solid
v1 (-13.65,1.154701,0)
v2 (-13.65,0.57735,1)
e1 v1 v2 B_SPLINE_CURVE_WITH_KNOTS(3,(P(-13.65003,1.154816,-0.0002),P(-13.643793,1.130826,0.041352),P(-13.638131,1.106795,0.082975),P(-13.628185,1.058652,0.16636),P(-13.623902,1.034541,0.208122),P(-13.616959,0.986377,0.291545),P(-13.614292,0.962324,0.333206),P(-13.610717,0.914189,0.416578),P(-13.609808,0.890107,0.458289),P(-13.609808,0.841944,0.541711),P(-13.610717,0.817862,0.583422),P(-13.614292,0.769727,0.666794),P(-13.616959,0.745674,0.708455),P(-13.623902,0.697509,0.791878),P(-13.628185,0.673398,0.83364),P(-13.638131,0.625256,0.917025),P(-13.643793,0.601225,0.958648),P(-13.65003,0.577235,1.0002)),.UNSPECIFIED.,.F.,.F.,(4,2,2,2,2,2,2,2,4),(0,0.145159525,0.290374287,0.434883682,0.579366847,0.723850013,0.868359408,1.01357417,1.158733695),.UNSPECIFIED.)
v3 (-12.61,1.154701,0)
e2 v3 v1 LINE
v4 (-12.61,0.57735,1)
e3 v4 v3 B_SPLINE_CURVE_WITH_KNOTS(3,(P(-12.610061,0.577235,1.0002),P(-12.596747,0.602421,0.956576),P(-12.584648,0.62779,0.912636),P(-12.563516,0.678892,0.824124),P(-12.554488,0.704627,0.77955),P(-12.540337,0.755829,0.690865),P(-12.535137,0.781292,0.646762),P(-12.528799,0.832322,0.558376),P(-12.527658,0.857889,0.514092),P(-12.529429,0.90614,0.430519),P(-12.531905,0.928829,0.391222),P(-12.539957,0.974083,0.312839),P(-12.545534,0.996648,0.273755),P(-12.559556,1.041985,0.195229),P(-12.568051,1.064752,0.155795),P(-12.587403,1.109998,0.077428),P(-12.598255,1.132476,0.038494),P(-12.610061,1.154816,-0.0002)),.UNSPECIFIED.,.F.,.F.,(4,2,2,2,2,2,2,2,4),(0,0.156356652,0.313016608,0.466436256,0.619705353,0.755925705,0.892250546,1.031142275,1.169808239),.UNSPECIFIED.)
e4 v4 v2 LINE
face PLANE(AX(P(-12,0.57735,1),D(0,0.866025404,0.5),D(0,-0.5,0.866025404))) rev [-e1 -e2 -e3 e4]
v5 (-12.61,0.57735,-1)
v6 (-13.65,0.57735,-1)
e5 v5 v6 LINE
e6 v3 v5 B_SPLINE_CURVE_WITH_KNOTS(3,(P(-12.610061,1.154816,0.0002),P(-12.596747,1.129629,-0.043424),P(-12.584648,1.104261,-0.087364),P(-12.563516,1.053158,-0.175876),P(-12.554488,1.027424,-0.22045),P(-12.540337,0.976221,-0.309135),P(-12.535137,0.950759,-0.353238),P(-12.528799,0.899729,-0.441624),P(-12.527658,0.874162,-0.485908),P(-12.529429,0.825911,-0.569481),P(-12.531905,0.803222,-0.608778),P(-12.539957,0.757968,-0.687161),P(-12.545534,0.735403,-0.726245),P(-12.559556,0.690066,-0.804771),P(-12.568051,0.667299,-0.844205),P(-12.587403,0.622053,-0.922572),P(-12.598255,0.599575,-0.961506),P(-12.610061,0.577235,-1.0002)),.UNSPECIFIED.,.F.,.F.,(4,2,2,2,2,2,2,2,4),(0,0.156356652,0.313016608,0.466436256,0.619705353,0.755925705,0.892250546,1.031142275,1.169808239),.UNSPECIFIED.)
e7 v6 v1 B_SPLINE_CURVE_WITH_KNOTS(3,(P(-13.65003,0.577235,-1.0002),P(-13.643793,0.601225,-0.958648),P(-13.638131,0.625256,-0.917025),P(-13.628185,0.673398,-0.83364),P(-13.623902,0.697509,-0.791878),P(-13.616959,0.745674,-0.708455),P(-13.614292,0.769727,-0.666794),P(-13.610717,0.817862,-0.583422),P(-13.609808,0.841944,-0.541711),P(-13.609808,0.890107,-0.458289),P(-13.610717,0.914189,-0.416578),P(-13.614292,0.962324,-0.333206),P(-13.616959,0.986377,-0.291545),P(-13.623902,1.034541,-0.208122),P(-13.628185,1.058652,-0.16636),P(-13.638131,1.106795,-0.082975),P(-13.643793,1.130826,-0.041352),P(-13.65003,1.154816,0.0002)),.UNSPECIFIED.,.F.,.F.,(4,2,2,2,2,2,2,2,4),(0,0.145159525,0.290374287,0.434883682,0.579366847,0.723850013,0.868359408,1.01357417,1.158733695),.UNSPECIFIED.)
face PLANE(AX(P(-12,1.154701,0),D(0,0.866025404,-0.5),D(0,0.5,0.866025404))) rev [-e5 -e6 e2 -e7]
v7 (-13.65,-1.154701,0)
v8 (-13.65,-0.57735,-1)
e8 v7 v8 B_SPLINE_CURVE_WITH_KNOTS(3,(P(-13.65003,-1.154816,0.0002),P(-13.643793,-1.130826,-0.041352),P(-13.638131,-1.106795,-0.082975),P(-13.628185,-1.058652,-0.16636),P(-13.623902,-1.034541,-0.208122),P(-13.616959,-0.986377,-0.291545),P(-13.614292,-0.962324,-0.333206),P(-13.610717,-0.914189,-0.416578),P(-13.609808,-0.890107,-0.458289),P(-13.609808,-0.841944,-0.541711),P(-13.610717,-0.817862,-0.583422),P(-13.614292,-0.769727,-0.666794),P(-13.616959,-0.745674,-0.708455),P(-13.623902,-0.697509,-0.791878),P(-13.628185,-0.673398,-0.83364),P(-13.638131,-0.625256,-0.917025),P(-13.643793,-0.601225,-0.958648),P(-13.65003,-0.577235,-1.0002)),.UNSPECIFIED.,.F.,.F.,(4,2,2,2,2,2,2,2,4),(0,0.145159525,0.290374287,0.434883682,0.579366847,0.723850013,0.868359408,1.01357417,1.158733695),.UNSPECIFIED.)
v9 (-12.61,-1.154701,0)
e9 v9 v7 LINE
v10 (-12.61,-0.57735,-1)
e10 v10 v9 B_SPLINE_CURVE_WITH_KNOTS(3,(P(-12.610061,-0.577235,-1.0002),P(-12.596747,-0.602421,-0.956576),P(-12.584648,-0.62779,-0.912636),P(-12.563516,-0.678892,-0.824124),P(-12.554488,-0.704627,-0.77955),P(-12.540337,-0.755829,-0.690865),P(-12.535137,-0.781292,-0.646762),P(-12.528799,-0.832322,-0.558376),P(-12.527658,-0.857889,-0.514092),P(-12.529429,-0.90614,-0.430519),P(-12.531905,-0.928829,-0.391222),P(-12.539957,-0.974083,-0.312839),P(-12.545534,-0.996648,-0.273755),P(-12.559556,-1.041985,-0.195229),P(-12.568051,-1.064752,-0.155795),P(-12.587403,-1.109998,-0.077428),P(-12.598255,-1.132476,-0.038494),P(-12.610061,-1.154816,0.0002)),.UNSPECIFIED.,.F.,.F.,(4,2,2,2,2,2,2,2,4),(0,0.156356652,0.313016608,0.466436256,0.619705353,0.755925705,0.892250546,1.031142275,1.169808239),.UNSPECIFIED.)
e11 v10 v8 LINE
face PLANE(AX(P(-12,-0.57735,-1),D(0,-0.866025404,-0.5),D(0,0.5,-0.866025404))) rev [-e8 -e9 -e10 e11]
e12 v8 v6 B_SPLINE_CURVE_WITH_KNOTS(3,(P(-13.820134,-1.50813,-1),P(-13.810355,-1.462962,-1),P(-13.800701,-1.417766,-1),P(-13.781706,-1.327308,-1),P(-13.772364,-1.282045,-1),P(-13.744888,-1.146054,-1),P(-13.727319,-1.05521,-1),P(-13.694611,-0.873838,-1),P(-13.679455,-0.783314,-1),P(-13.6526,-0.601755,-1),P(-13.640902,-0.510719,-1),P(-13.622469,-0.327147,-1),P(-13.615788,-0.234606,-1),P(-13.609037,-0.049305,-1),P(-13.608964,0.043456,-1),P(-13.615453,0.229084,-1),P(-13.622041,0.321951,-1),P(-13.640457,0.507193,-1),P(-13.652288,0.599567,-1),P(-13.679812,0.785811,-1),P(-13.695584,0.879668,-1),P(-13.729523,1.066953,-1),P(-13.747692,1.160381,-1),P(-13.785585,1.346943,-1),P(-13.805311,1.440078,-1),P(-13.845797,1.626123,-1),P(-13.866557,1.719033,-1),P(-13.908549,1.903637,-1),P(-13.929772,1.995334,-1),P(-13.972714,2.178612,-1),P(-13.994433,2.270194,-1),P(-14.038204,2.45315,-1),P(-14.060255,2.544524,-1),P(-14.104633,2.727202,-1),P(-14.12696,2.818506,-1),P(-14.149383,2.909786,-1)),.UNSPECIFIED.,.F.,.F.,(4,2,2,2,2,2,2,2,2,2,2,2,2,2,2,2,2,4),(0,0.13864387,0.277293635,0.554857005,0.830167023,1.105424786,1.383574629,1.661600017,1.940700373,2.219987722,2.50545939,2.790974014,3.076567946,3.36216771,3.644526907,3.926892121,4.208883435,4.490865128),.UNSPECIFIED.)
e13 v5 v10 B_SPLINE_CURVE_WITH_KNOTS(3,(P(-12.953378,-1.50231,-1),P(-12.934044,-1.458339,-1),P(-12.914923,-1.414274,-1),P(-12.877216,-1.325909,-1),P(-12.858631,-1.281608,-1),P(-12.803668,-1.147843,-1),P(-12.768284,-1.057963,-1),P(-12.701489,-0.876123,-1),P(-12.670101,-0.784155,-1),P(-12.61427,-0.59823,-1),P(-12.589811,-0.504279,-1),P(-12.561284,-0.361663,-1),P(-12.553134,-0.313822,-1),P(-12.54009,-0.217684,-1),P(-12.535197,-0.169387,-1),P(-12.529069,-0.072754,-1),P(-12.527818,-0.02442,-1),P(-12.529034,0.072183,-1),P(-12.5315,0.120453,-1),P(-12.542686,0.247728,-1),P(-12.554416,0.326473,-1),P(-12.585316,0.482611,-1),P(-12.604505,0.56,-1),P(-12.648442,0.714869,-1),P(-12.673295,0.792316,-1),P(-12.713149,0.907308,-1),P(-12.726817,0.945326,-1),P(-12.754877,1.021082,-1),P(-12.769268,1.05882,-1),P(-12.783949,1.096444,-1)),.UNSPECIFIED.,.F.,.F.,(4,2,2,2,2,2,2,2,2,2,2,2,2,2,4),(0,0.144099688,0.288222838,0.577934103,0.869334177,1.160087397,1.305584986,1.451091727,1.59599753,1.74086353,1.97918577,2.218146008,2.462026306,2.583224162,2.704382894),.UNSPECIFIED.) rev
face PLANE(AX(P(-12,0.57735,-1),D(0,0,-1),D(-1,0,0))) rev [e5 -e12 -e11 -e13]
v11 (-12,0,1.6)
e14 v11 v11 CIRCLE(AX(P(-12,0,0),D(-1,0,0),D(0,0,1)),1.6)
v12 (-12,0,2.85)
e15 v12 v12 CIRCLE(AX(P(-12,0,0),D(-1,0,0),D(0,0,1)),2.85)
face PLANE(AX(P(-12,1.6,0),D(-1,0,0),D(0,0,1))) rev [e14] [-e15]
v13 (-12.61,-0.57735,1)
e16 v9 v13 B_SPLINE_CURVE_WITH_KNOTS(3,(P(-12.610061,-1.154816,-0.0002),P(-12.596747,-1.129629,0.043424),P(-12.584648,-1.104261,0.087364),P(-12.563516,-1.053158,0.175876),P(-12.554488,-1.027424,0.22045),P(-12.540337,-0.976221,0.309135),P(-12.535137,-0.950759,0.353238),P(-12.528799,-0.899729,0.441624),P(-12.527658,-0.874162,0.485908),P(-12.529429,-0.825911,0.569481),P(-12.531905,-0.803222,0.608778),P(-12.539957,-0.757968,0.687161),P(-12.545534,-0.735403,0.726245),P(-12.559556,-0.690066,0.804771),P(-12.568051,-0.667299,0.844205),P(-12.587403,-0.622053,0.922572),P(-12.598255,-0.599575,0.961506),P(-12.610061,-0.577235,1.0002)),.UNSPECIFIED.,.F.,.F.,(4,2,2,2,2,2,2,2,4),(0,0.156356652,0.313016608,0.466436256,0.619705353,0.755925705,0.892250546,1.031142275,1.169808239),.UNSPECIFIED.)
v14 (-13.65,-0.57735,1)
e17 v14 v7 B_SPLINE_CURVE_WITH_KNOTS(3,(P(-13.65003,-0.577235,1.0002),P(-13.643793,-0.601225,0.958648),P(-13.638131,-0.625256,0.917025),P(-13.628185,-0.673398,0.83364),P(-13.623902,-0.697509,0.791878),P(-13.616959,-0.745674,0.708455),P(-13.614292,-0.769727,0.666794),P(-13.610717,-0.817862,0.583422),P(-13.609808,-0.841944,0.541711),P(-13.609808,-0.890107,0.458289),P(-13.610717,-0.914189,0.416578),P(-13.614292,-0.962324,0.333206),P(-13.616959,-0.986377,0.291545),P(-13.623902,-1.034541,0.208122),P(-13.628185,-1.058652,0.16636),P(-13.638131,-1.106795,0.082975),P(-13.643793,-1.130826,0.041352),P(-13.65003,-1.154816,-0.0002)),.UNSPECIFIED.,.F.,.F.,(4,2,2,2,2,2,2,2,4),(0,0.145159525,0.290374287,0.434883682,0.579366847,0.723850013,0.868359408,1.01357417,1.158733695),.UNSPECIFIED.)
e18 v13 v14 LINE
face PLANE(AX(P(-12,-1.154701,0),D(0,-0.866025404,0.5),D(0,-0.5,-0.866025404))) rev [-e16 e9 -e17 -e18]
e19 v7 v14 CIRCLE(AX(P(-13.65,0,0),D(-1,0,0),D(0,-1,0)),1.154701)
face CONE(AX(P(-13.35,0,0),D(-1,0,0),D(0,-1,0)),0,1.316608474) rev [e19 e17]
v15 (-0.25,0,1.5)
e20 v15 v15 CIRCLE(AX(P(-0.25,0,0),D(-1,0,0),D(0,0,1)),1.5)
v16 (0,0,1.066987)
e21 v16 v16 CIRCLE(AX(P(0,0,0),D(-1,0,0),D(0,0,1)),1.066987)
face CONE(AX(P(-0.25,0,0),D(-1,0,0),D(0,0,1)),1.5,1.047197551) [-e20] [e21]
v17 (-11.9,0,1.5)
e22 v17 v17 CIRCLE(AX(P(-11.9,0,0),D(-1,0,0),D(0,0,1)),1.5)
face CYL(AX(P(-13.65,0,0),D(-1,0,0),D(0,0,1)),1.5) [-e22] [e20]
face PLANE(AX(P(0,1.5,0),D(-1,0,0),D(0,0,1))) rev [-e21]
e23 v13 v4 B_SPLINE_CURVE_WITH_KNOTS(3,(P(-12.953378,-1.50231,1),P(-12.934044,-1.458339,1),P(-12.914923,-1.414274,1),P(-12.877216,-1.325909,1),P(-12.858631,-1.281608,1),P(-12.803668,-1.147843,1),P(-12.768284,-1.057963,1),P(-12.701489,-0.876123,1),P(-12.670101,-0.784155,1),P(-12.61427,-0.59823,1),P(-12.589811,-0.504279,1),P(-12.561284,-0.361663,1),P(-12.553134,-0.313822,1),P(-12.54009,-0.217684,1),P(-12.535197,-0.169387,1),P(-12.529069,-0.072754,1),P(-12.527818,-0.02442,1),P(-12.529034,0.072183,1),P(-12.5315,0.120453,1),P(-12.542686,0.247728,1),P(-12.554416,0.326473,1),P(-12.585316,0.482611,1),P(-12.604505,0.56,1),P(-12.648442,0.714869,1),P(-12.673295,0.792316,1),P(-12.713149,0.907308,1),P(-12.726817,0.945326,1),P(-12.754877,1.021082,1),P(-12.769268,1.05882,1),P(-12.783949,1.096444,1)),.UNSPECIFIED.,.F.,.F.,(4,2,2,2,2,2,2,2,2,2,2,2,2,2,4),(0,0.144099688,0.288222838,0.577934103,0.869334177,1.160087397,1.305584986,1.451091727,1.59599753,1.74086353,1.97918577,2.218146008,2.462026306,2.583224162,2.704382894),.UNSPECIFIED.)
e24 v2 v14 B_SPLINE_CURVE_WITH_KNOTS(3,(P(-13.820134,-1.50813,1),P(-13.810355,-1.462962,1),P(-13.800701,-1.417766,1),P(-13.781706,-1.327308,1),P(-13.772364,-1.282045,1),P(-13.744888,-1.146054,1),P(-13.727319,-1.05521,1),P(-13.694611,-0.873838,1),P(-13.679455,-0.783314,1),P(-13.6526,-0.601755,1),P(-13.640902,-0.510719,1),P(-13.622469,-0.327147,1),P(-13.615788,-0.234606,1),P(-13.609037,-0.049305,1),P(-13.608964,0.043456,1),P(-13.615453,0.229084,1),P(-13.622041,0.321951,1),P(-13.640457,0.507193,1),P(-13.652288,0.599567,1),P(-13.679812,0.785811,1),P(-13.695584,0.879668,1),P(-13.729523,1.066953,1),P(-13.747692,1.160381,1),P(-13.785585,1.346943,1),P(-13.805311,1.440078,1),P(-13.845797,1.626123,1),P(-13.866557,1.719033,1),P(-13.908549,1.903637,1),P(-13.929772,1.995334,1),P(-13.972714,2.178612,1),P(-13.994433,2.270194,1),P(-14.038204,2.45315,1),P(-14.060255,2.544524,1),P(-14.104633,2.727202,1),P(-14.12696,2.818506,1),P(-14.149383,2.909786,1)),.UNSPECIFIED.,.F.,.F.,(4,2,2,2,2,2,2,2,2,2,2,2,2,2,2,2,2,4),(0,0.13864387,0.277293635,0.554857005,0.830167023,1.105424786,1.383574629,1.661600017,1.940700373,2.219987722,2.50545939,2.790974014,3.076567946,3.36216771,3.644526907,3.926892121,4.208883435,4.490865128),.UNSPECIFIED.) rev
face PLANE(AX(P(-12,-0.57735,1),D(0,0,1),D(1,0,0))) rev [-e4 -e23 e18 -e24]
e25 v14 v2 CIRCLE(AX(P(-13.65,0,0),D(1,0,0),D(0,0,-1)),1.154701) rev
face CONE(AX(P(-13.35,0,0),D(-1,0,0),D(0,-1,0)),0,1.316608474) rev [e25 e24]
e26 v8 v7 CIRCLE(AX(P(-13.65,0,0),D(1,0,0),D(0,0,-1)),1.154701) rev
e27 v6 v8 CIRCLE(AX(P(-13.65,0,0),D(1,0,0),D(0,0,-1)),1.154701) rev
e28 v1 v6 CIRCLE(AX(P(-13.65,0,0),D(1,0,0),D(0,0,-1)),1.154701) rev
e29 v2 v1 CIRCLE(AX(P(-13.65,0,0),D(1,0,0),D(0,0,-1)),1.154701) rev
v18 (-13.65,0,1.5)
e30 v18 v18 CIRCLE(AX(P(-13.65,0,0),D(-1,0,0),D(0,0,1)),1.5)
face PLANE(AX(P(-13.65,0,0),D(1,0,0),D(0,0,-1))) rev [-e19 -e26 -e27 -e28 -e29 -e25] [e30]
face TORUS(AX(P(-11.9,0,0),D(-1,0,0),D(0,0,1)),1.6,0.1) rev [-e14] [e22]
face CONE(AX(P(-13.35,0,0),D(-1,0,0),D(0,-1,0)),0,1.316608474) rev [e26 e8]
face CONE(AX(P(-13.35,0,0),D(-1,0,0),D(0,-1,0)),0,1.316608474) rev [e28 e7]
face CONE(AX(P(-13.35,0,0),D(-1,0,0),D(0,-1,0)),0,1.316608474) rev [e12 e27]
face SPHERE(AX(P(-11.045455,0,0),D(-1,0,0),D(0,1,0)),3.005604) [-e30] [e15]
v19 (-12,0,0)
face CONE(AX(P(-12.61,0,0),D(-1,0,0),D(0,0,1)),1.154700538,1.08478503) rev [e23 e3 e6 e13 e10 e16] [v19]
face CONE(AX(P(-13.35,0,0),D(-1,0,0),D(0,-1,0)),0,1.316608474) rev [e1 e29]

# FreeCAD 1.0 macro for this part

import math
import FreeCAD as App
import Part
import Sketcher

V = App.Vector
Q = App.Units.Quantity

doc = App.newDocument("Part")
body = doc.addObject("PartDesign::Body", "Body")

# Sketch on XY plane
sketch1 = body.newObject("Sketcher::SketchObject", "Sketch")
sketch1.AttachmentSupport = (doc.getObject("XY_Plane"), [""])
sketch1.MapMode = "FlatFace"
sketch1.addGeometry(Part.LineSegment(V(0, 1.5, 0), V(-11.9, 1.5, 0)), False)
sketch1.addGeometry(Part.ArcOfCircle(Part.Circle(V(-11.9, 1.6, 0), V(0, 0, 1), 0.1), math.radians(180), math.radians(270)), False)
sketch1.addGeometry(Part.LineSegment(V(-12, 1.6, 0), V(-12, 2.85, 0)), False)
sketch1.addGeometry(Part.ArcOfCircle(Part.Circle(V(-11.05, 0, 0), V(0, 0, 1), 3.01), math.radians(109), math.radians(150)), False)
sketch1.addGeometry(Part.LineSegment(V(-13.65, 1.5, 0), V(-13.65, 0, 0)), False)
sketch1.addGeometry(Part.LineSegment(V(-13.65, 0, 0), V(0, 0, 0)), False)
sketch1.addGeometry(Part.LineSegment(V(0, 0, 0), V(0, 1.5, 0)), False)
sketch1.addConstraint(Sketcher.Constraint("Tangent", 0, 2, 1, 2))
sketch1.addConstraint(Sketcher.Constraint("Tangent", 1, 1, 2, 1))
sketch1.addConstraint(Sketcher.Constraint("Coincident", 2, 2, 3, 1))
sketch1.addConstraint(Sketcher.Constraint("Coincident", 3, 2, 4, 1))
sketch1.addConstraint(Sketcher.Constraint("Coincident", 4, 2, 5, 1))
sketch1.addConstraint(Sketcher.Constraint("Coincident", 5, 2, 6, 1))
sketch1.addConstraint(Sketcher.Constraint("Coincident", 6, 2, 0, 1))
sketch1.addConstraint(Sketcher.Constraint("Horizontal", 0))
sketch1.addConstraint(Sketcher.Constraint("Vertical", 2))
sketch1.addConstraint(Sketcher.Constraint("Vertical", 4))
sketch1.addConstraint(Sketcher.Constraint("Horizontal", 5))
sketch1.addConstraint(Sketcher.Constraint("Vertical", 6))
sketch1.addConstraint(Sketcher.Constraint("Coincident", 5, 2, -1, 1))
sketch1.addConstraint(Sketcher.Constraint("PointOnObject", 3, 3, -1))
sketch1.addConstraint(Sketcher.Constraint("Horizontal", 0, 2, 3, 2))
sketch1.addConstraint(Sketcher.Constraint("Radius", 1, 0.1))
sketch1.addConstraint(Sketcher.Constraint("DistanceX", 0, 2, 0, 1, 11.9))
sketch1.addConstraint(Sketcher.Constraint("DistanceY", 4, 2, 4, 1, 1.5))
sketch1.addConstraint(Sketcher.Constraint("DistanceX", 5, 1, 5, 2, 13.65))
sketch1.addConstraint(Sketcher.Constraint("DistanceY", 2, 1, 2, 2, 1.25))
revolution = body.newObject("PartDesign::Revolution", "Revolution")
revolution.Profile = sketch1
revolution.ReferenceAxis = (sketch1, ["H_Axis"])
revolution.Angle = 360

# Sketch on YZ plane
sketch2 = body.newObject("Sketcher::SketchObject", "Sketch001")
sketch2.AttachmentSupport = (doc.getObject("YZ_Plane"), [""])
sketch2.MapMode = "FlatFace"
sketch2.AttachmentOffset = App.Placement(V(0, 0, -13.65), App.Rotation())
sketch2.addGeometry(Part.LineSegment(V(1.2, 0, 0), V(0.6, -1, 0)), False)
sketch2.addGeometry(Part.LineSegment(V(0.6, -1, 0), V(-0.6, -1, 0)), False)
sketch2.addGeometry(Part.LineSegment(V(-0.6, -1, 0), V(-1.2, 0, 0)), False)
sketch2.addGeometry(Part.LineSegment(V(-1.2, 0, 0), V(-0.6, 1, 0)), False)
sketch2.addGeometry(Part.LineSegment(V(-0.6, 1, 0), V(0.6, 1, 0)), False)
sketch2.addGeometry(Part.LineSegment(V(0.6, 1, 0), V(1.2, 0, 0)), False)
sketch2.addConstraint(Sketcher.Constraint("Coincident", 0, 2, 1, 1))
sketch2.addConstraint(Sketcher.Constraint("Coincident", 1, 2, 2, 1))
sketch2.addConstraint(Sketcher.Constraint("Coincident", 2, 2, 3, 1))
sketch2.addConstraint(Sketcher.Constraint("Coincident", 3, 2, 4, 1))
sketch2.addConstraint(Sketcher.Constraint("Coincident", 4, 2, 5, 1))
sketch2.addConstraint(Sketcher.Constraint("Coincident", 5, 2, 0, 1))
sketch2.addConstraint(Sketcher.Constraint("Horizontal", 1))
sketch2.addConstraint(Sketcher.Constraint("Horizontal", 4))
sketch2.addConstraint(Sketcher.Constraint("Symmetric", 0, 2, 3, 2, -1, 1))
sketch2.addConstraint(Sketcher.Constraint("Symmetric", 2, 2, 5, 2, -1, 1))
sketch2.addConstraint(Sketcher.Constraint("PointOnObject", 2, 2, -1))
sketch2.addConstraint(Sketcher.Constraint("Parallel", 2, 5))
sketch2.addConstraint(Sketcher.Constraint("Vertical", 1, 2, 3, 2))
sketch2.addConstraint(Sketcher.Constraint("Angle", 0, Q("-120 deg")))
sketch2.addConstraint(Sketcher.Constraint("DistanceY", 0, 2, -1, 1, 1.0))
sketch2.addConstraint(Sketcher.Constraint("DistanceX", 1, 2, 1, 1, 1.154701))
pocket1 = body.newObject("PartDesign::Pocket", "Pocket")
pocket1.Profile = sketch2
pocket1.Length = 1.65
pocket1.Reversed = True

# Sketch on XY plane
sketch3 = body.newObject("Sketcher::SketchObject", "Sketch002")
sketch3.AttachmentSupport = (doc.getObject("XY_Plane"), [""])
sketch3.MapMode = "FlatFace"
sketch3.addGeometry(Part.LineSegment(V(-12.61, 1.15, 0), V(-12, 0, 0)), False)
sketch3.addGeometry(Part.LineSegment(V(-12, 0, 0), V(-11.7, 0, 0)), False)
sketch3.addGeometry(Part.LineSegment(V(-11.7, 0, 0), V(-11.7, 1.15, 0)), False)
sketch3.addGeometry(Part.LineSegment(V(-11.7, 1.15, 0), V(-12.61, 1.15, 0)), False)
sketch3.addConstraint(Sketcher.Constraint("Coincident", 0, 2, 1, 1))
sketch3.addConstraint(Sketcher.Constraint("Coincident", 1, 2, 2, 1))
sketch3.addConstraint(Sketcher.Constraint("Coincident", 2, 2, 3, 1))
sketch3.addConstraint(Sketcher.Constraint("Coincident", 3, 2, 0, 1))
sketch3.addConstraint(Sketcher.Constraint("Horizontal", 1))
sketch3.addConstraint(Sketcher.Constraint("Vertical", 2))
sketch3.addConstraint(Sketcher.Constraint("Horizontal", 3))
sketch3.addConstraint(Sketcher.Constraint("PointOnObject", 0, 2, -1))
sketch3.addConstraint(Sketcher.Constraint("DistanceX", 1, 1, 1, 2, 0.3))
sketch3.addConstraint(Sketcher.Constraint("DistanceX", 0, 2, -1, 1, 12.0))
sketch3.addConstraint(Sketcher.Constraint("DistanceX", 3, 2, 3, 1, 0.91))
sketch3.addConstraint(Sketcher.Constraint("DistanceY", 2, 1, 2, 2, 1.154701))
revolution2 = body.newObject("PartDesign::Revolution", "Revolution001")
revolution2.Profile = sketch3
revolution2.ReferenceAxis = (sketch3, ["H_Axis"])
revolution2.Angle = 360

# Sketch on XY plane
sketch4 = body.newObject("Sketcher::SketchObject", "Sketch003")
sketch4.AttachmentSupport = (doc.getObject("XY_Plane"), [""])
sketch4.MapMode = "FlatFace"
sketch4.addGeometry(Part.LineSegment(V(-13.35, 0, 0), V(-13.65, 1.15, 0)), False)
sketch4.addGeometry(Part.LineSegment(V(-13.65, 1.15, 0), V(-13.65, 0, 0)), False)
sketch4.addGeometry(Part.LineSegment(V(-13.65, 0, 0), V(-13.35, 0, 0)), False)
sketch4.addConstraint(Sketcher.Constraint("Coincident", 0, 2, 1, 1))
sketch4.addConstraint(Sketcher.Constraint("Coincident", 1, 2, 2, 1))
sketch4.addConstraint(Sketcher.Constraint("Coincident", 2, 2, 0, 1))
sketch4.addConstraint(Sketcher.Constraint("Vertical", 1))
sketch4.addConstraint(Sketcher.Constraint("Horizontal", 2))
sketch4.addConstraint(Sketcher.Constraint("PointOnObject", 1, 2, -1))
sketch4.addConstraint(Sketcher.Constraint("DistanceX", 2, 1, 2, 2, 0.3))
sketch4.addConstraint(Sketcher.Constraint("DistanceX", 0, 2, -1, 1, 13.65))
sketch4.addConstraint(Sketcher.Constraint("DistanceY", 1, 2, 1, 1, 1.154701))
groove = body.newObject("PartDesign::Groove", "Groove")
groove.Profile = sketch4
groove.ReferenceAxis = (sketch4, ["H_Axis"])
groove.Angle = 360

# Sketch on XY plane
sketch5 = body.newObject("Sketcher::SketchObject", "Sketch004")
sketch5.AttachmentSupport = (doc.getObject("XY_Plane"), [""])
sketch5.MapMode = "FlatFace"
sketch5.addGeometry(Part.LineSegment(V(-0.2, 1.5, 0), V(0, 1.1, 0)), False)
sketch5.addGeometry(Part.LineSegment(V(0, 1.1, 0), V(0.2, 1.5, 0)), False)
sketch5.addGeometry(Part.LineSegment(V(0.2, 1.5, 0), V(-0.2, 1.5, 0)), False)
sketch5.addConstraint(Sketcher.Constraint("Coincident", 0, 2, 1, 1))
sketch5.addConstraint(Sketcher.Constraint("Coincident", 1, 2, 2, 1))
sketch5.addConstraint(Sketcher.Constraint("Coincident", 2, 2, 0, 1))
sketch5.addConstraint(Sketcher.Constraint("Horizontal", 2))
sketch5.addConstraint(Sketcher.Constraint("PointOnObject", 0, 2, -2))
sketch5.addConstraint(Sketcher.Constraint("Equal", 0, 1))
sketch5.addConstraint(Sketcher.Constraint("Angle", 0, Q("-60 deg")))
sketch5.addConstraint(Sketcher.Constraint("DistanceX", 2, 2, 2, 1, 0.5))
sketch5.addConstraint(Sketcher.Constraint("DistanceY", -1, 1, 1, 2, 1.5))
groove2 = body.newObject("PartDesign::Groove", "Groove001")
groove2.Profile = sketch5
groove2.ReferenceAxis = (sketch5, ["H_Axis"])
groove2.Angle = 360

doc.recompute()
